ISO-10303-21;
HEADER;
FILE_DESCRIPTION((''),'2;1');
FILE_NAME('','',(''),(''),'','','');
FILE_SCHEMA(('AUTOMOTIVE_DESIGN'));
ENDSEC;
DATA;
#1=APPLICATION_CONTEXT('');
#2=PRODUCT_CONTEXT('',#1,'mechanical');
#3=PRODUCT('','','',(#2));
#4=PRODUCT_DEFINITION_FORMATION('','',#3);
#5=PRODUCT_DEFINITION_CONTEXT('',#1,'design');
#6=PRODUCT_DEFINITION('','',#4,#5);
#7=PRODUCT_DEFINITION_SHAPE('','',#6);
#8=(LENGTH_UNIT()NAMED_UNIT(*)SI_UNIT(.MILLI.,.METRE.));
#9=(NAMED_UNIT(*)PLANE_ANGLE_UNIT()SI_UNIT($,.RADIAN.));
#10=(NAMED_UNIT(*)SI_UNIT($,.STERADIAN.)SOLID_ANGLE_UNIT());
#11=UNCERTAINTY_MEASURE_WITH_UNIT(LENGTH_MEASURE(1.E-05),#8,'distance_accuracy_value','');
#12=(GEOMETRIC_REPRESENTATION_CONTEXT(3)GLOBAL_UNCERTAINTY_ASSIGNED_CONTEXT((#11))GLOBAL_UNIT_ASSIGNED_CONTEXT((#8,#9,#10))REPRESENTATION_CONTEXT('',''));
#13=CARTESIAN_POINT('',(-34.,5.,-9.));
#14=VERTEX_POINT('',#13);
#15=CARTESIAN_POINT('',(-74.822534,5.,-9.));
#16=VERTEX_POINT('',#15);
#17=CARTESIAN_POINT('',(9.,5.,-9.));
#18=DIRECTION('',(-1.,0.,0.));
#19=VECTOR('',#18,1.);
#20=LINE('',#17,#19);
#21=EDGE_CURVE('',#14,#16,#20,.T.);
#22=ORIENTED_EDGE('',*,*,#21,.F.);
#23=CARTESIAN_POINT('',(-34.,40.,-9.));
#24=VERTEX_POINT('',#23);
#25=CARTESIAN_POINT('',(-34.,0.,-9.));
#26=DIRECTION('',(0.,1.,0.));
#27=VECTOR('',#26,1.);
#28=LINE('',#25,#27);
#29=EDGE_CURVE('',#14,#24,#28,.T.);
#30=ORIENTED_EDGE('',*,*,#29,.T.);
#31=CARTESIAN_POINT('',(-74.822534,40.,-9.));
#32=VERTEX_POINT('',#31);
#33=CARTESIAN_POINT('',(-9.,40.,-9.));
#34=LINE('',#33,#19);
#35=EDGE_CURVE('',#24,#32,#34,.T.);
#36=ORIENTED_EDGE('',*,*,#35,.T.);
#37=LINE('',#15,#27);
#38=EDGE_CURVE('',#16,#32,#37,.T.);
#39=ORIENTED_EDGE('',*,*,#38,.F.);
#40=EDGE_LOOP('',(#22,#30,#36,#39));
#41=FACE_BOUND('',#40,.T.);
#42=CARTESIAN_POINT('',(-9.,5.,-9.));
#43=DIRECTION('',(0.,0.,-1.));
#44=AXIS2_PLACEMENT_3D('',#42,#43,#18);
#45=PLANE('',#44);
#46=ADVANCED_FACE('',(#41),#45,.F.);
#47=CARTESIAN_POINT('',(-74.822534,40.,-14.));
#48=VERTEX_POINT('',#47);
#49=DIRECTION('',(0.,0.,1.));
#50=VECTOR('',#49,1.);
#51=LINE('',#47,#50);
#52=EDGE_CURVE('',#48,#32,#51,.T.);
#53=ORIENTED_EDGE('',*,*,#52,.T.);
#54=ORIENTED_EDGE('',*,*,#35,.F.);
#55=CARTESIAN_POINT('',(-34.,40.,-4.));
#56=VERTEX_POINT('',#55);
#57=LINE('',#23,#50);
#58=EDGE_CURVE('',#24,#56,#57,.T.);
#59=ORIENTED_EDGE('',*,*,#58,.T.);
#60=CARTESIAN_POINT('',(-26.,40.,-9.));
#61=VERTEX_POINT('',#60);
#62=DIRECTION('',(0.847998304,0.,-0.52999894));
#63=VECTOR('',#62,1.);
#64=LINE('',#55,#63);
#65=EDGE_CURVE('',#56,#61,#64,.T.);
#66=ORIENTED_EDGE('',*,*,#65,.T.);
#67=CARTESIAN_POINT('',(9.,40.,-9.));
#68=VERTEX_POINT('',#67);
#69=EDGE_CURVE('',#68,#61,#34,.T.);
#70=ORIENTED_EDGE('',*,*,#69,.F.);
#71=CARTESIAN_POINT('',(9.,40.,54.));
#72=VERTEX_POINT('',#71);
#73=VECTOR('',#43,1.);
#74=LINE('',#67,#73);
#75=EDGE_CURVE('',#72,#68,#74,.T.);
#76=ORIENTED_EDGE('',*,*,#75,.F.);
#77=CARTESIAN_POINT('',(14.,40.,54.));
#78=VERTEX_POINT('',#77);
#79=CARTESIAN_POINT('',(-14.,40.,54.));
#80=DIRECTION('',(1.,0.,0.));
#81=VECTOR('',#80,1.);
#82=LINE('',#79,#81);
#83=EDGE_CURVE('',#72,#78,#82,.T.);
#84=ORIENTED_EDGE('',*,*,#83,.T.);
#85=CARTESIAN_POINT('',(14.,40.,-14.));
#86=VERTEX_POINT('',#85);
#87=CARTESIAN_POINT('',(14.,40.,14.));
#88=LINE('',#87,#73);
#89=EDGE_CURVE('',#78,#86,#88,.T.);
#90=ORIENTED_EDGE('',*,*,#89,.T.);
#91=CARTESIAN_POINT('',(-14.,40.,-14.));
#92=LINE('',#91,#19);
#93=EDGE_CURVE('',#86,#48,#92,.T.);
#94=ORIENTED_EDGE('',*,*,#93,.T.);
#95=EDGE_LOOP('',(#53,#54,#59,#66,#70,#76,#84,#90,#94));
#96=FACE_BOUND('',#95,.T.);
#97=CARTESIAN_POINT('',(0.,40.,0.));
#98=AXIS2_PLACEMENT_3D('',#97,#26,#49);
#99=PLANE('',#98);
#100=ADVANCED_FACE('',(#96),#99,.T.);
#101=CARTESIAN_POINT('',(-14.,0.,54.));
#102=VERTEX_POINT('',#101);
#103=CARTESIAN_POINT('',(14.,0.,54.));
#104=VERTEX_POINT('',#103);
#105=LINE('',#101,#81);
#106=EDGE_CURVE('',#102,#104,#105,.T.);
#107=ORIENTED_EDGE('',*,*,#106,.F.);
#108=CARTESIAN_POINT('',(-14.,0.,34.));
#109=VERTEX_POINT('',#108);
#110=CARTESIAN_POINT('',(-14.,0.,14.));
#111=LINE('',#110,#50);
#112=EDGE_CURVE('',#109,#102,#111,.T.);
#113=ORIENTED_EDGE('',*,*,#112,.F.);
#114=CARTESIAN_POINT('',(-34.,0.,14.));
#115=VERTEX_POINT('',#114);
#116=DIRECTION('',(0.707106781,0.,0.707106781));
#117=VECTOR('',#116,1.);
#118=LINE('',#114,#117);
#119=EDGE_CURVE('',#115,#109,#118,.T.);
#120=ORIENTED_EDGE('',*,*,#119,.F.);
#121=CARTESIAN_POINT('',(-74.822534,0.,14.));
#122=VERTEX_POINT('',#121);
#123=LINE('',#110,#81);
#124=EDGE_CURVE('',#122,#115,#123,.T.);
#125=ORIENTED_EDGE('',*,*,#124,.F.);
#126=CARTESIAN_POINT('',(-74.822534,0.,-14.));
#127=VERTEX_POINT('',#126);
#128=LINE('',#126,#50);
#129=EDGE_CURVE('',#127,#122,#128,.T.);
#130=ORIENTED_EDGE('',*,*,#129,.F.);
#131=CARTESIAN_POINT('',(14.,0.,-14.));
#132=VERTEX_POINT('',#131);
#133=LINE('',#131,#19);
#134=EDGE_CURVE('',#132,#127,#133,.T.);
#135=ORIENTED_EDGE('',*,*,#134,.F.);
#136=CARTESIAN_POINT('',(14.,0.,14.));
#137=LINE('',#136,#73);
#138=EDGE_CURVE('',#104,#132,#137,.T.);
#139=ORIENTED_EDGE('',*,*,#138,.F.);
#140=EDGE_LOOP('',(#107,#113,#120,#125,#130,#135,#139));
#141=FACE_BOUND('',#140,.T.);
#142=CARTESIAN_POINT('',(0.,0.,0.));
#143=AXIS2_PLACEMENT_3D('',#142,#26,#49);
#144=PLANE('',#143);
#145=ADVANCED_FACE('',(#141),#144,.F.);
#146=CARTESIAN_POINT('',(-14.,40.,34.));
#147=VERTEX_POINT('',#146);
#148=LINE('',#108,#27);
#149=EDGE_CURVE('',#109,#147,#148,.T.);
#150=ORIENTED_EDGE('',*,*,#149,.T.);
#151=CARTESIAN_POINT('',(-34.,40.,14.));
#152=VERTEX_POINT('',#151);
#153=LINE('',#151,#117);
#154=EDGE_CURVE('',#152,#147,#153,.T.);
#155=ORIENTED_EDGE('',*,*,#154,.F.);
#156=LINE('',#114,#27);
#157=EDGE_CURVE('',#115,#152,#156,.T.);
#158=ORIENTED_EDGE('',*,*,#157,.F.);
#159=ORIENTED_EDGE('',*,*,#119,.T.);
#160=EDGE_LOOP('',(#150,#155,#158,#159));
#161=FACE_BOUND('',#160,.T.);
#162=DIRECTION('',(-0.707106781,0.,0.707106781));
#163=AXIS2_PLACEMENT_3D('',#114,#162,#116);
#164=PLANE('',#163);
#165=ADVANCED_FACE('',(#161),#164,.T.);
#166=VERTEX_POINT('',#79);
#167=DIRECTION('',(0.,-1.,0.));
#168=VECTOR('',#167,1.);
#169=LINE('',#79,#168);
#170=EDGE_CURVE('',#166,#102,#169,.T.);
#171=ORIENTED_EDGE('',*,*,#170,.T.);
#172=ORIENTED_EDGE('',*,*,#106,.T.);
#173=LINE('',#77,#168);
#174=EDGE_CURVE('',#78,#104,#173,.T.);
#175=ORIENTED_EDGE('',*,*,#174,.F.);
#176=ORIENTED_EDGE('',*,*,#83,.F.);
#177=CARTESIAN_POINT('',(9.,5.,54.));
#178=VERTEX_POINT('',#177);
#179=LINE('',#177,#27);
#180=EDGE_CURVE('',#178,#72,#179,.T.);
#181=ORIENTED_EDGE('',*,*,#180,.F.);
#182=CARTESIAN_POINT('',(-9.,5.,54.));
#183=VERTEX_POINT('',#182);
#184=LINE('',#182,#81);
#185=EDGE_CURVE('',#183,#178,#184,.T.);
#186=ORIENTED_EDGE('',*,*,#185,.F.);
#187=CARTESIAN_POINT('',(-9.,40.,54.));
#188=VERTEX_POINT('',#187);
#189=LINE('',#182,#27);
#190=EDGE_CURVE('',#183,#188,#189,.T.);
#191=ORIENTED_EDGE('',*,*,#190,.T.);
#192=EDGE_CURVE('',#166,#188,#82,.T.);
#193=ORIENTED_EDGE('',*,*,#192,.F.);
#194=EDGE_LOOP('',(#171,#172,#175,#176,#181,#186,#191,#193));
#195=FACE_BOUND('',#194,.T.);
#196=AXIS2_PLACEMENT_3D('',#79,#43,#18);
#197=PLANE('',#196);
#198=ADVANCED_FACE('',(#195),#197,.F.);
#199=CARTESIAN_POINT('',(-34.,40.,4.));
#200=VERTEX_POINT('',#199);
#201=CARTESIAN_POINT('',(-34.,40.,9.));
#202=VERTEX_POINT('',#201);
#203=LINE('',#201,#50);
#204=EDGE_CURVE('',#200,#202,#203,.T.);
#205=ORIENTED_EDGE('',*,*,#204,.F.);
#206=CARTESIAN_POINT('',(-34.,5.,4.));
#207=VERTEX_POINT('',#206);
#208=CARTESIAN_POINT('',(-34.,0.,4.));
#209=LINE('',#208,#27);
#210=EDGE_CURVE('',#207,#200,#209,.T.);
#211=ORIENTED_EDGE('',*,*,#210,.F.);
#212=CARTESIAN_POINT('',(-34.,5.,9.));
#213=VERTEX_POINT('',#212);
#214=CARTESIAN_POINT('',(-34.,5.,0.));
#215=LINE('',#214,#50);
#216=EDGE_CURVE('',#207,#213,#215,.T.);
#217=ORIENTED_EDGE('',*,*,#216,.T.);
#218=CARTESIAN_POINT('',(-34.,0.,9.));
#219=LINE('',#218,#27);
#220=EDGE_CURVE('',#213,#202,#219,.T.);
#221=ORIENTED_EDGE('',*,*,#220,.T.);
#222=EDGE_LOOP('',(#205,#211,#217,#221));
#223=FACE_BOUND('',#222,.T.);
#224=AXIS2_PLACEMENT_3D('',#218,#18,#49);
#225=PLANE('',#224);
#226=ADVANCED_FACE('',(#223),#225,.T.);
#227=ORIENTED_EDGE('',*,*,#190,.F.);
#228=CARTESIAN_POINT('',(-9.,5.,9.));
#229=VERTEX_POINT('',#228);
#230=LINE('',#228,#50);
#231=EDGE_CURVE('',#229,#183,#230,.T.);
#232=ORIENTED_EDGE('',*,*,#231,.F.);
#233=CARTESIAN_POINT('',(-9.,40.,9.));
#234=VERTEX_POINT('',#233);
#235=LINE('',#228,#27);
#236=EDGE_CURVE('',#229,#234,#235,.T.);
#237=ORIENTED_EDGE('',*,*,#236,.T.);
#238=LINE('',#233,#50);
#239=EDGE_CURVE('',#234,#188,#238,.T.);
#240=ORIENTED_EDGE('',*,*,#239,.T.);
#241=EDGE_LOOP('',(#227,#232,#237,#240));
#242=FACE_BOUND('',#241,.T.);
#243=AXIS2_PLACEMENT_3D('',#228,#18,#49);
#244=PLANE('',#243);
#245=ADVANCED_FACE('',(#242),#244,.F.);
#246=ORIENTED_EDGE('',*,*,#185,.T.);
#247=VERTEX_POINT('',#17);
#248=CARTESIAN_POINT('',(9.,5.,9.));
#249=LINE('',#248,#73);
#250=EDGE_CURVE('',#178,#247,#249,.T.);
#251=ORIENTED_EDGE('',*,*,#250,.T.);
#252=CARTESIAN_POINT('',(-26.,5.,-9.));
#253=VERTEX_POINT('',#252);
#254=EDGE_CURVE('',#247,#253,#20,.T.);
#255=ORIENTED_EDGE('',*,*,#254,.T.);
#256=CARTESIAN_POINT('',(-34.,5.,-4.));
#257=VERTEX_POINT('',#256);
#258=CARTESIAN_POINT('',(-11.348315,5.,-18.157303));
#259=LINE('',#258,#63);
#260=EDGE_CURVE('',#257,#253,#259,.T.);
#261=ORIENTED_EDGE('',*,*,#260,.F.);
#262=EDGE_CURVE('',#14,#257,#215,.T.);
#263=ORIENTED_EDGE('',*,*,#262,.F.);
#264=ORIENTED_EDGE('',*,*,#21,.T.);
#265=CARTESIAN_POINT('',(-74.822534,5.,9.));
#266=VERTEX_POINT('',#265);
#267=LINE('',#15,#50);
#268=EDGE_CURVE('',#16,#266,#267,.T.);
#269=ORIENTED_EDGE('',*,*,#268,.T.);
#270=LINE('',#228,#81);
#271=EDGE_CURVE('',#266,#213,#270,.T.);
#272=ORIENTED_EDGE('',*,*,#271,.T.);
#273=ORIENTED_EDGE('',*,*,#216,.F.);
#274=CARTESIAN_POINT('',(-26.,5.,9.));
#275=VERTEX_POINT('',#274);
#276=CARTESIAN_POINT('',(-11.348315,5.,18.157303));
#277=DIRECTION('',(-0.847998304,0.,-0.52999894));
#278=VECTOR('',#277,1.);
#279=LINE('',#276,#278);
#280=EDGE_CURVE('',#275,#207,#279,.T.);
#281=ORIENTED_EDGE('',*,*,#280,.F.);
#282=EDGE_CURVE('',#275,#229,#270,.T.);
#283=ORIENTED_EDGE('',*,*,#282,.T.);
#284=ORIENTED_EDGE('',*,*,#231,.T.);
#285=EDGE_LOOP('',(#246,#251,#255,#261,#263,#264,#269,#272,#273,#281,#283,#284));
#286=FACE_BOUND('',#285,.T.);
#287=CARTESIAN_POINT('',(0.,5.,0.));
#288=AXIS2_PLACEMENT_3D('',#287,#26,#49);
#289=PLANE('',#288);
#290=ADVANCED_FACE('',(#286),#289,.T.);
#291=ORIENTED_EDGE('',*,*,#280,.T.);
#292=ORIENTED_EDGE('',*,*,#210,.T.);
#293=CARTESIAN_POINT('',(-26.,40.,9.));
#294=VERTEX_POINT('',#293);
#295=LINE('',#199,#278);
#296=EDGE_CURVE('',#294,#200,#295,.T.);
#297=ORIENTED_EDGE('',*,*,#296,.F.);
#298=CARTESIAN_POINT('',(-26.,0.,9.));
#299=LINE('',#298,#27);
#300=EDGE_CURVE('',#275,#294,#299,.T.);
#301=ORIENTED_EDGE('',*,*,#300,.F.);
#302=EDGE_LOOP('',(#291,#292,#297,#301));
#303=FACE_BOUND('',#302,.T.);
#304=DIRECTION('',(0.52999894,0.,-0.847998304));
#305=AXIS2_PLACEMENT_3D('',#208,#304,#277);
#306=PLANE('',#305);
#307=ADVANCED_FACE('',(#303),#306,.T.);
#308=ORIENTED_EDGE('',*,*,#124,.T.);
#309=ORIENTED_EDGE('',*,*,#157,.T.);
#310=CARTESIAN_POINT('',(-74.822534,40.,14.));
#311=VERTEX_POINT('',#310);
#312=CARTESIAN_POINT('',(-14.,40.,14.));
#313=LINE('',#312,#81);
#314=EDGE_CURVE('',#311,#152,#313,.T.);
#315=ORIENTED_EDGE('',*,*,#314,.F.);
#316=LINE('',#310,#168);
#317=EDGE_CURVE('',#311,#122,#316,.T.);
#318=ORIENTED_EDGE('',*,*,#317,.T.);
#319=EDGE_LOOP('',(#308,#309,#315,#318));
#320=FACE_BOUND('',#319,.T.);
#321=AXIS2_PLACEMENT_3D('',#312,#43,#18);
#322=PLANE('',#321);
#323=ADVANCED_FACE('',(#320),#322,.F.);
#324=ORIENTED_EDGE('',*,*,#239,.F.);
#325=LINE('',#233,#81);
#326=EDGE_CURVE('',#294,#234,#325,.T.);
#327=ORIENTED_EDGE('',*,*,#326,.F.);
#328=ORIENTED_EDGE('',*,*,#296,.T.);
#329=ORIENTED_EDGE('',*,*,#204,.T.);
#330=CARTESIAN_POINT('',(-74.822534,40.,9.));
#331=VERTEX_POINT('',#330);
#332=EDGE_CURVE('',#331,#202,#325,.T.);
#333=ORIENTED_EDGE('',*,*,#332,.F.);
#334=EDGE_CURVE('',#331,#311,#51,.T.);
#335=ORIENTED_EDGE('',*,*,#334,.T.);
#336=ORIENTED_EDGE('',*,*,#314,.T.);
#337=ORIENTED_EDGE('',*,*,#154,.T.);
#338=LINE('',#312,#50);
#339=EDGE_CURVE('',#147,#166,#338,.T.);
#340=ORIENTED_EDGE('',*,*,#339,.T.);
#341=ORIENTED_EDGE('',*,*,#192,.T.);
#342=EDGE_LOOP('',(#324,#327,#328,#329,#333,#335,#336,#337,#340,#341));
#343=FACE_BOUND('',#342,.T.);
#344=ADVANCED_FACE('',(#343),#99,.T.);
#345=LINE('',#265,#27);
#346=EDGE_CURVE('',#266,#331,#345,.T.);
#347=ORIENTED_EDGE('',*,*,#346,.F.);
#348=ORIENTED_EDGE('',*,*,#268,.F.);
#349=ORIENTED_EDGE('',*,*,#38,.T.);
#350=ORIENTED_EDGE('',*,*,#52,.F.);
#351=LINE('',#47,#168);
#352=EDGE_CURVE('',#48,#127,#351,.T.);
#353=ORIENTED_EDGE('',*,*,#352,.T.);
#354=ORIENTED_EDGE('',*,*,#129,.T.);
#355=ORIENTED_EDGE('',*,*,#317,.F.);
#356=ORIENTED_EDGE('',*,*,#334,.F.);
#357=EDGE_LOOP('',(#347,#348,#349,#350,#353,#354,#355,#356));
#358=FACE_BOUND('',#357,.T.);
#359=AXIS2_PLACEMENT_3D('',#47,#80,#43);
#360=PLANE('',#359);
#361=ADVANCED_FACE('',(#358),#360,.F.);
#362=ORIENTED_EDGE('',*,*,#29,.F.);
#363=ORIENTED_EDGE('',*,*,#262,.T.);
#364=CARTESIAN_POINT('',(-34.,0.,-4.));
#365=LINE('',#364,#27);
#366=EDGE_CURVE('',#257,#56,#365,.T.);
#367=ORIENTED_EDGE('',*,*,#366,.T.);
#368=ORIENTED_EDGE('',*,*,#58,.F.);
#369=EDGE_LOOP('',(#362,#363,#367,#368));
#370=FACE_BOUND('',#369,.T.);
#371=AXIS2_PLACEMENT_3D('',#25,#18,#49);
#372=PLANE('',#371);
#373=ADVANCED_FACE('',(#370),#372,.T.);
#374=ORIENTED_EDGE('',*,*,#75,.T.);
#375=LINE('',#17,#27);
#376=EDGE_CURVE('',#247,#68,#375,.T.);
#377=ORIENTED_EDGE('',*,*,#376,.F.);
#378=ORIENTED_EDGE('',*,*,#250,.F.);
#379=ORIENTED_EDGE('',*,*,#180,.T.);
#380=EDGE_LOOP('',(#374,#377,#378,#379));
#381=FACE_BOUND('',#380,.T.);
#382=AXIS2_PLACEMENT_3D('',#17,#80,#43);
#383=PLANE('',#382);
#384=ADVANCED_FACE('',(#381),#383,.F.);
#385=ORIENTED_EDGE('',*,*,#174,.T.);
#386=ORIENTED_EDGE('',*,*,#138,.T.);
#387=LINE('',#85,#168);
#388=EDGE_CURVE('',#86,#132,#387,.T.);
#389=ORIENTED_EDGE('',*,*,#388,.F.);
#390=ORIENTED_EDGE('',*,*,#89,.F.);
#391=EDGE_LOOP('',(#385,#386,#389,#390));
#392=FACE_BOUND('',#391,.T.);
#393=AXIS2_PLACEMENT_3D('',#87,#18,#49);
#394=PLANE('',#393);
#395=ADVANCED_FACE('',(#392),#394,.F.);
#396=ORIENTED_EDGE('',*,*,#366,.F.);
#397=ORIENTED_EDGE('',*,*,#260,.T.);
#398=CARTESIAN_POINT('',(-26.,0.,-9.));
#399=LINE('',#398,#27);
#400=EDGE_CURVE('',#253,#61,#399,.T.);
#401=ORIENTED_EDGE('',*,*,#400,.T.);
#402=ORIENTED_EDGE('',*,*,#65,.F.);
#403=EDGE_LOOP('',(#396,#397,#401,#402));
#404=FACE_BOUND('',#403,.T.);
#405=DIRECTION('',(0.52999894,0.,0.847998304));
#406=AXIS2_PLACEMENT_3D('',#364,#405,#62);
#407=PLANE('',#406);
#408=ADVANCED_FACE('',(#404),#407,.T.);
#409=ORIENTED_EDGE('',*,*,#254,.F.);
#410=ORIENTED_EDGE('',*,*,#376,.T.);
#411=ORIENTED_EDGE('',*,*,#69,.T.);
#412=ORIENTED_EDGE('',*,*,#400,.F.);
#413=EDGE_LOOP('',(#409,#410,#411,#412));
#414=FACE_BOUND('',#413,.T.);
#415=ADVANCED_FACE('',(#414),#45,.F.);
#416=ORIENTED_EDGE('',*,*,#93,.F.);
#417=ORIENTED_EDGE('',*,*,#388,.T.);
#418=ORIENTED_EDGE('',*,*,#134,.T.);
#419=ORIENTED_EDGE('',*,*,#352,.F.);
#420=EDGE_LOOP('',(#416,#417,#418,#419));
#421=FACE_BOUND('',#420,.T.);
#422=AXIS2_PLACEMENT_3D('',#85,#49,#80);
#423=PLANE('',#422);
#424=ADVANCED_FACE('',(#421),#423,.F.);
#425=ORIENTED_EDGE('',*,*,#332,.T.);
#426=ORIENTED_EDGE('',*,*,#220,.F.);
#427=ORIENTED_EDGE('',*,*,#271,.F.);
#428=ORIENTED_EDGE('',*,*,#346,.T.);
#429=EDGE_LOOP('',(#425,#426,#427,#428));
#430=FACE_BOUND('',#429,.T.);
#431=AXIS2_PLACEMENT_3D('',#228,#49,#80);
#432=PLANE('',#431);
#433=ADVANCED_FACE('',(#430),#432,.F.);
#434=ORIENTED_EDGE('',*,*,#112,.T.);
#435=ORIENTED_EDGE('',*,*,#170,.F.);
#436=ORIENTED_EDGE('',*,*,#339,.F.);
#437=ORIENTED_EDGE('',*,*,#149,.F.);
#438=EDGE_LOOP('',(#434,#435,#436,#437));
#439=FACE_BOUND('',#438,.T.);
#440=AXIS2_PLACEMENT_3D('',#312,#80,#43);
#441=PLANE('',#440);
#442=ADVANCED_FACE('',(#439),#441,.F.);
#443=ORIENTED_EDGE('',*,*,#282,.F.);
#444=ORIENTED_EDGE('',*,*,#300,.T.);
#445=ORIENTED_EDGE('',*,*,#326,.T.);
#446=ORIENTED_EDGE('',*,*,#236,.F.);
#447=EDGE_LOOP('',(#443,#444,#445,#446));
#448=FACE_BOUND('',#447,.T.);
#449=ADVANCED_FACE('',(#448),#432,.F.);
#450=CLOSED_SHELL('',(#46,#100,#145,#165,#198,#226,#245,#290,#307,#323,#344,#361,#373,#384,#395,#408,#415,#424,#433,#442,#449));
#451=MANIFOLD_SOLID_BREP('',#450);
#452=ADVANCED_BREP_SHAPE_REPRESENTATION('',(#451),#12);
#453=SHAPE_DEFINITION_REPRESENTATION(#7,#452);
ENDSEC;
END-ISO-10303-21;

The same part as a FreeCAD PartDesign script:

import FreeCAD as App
import Part
import Sketcher
Q = App.Units.Quantity


def add_polygon(sketch, points):
    """Adds a closed chain of lines whose ends are joined by coincident constraints."""
    first, n = sketch.GeometryCount, len(points)
    for a, b in zip(points, points[1:] + points[:1]):
        sketch.addGeometry(Part.LineSegment(App.Vector(*a, 0), App.Vector(*b, 0)), False)
    for i in range(n):
        sketch.addConstraint(Sketcher.Constraint("Coincident", first + i, 2, first + (i + 1) % n, 1))

doc = App.newDocument("Part")
params = doc.addObject("Spreadsheet::Sheet", "Params")
for row, (alias, value) in enumerate([
    ("sketch1_width", "28 mm"),
    ("sketch1_height", "40 mm"),
    ("pad1_length", "40 mm"),
    ("sketch2_width", "18 mm"),
    ("sketch2_height", "45 mm"),
    ("pocket1_length", "35 mm"),
    ("sketch3_width", "20 mm"),
    ("sketch3_width2", "8 mm"),
    ("sketch3_height", "5 mm"),
    ("pad2_length", "40 mm"),
], start=1):
    params.set(f"A{row}", alias)
    params.set(f"B{row}", "=" + value)
    params.setAlias(f"B{row}", alias)

body = doc.addObject("PartDesign::Body", "Body")

# Sketch on XZ plane
sketch1 = body.newObject("Sketcher::SketchObject", "Sketch")
sketch1.AttachmentSupport = (doc.getObject("XZ_Plane"), [""])
sketch1.MapMode = "FlatFace"
add_polygon(sketch1, [(14, -14), (-75, -14), (-75, 14), (-14, 14), (-14, 54), (14, 54)])  # lines 0-5
sketch1.addConstraint(Sketcher.Constraint("Horizontal", 0))
sketch1.addConstraint(Sketcher.Constraint("Vertical", 1))
sketch1.addConstraint(Sketcher.Constraint("Horizontal", 2))
sketch1.addConstraint(Sketcher.Constraint("Vertical", 3))
sketch1.addConstraint(Sketcher.Constraint("Horizontal", 4))
sketch1.addConstraint(Sketcher.Constraint("Vertical", 5))
sketch1.addConstraint(Sketcher.Constraint("Symmetric", 2, 2, 5, 2, -1, 1))
sketch1.addConstraint(Sketcher.Constraint("Equal", 4, 1))
sketch1.addConstraint(Sketcher.Constraint("DistanceX", 4, 1, 4, 2, Q("28 mm")))
sketch1.addConstraint(Sketcher.Constraint("DistanceY", 3, 1, 3, 2, Q("40 mm")))
sketch1.addConstraint(Sketcher.Constraint("DistanceX", 0, 2, 0, 1, Q("88.822534 mm")))
sketch1.setExpression("Constraints[14]", "Params.sketch1_width")
sketch1.setExpression("Constraints[15]", "Params.sketch1_height")
pad1 = body.newObject("PartDesign::Pad", "Pad")
pad1.Profile = sketch1
pad1.setExpression("Length", "Params.pad1_length")
pad1.Reversed = True

# Sketch on XZ plane
sketch2 = body.newObject("Sketcher::SketchObject", "Sketch001")
sketch2.AttachmentSupport = (doc.getObject("XZ_Plane"), [""])
sketch2.MapMode = "FlatFace"
sketch2.AttachmentOffset = App.Placement(App.Vector(0, 0, -40), App.Rotation())
add_polygon(sketch2, [(9, -9), (-75, -9), (-75, 9), (-9, 9), (-9, 54), (9, 54)])  # lines 0-5
sketch2.addConstraint(Sketcher.Constraint("Horizontal", 0))
sketch2.addConstraint(Sketcher.Constraint("Vertical", 1))
sketch2.addConstraint(Sketcher.Constraint("Horizontal", 2))
sketch2.addConstraint(Sketcher.Constraint("Vertical", 3))
sketch2.addConstraint(Sketcher.Constraint("Horizontal", 4))
sketch2.addConstraint(Sketcher.Constraint("Vertical", 5))
sketch2.addConstraint(Sketcher.Constraint("Symmetric", 2, 2, 5, 2, -1, 1))
sketch2.addConstraint(Sketcher.Constraint("Equal", 4, 1))
sketch2.addConstraint(Sketcher.Constraint("DistanceX", 4, 1, 4, 2, Q("18 mm")))
sketch2.addConstraint(Sketcher.Constraint("DistanceY", 3, 1, 3, 2, Q("45 mm")))
sketch2.addConstraint(Sketcher.Constraint("DistanceX", 0, 2, 0, 1, Q("83.822534 mm")))
sketch2.setExpression("Constraints[14]", "Params.sketch2_width")
sketch2.setExpression("Constraints[15]", "Params.sketch2_height")
pocket1 = body.newObject("PartDesign::Pocket", "Pocket")
pocket1.Profile = sketch2
pocket1.setExpression("Length", "Params.pocket1_length")
pocket1.Reversed = True

# Sketch on XZ plane
sketch3 = body.newObject("Sketcher::SketchObject", "Sketch002")
sketch3.AttachmentSupport = (doc.getObject("XZ_Plane"), [""])
sketch3.MapMode = "FlatFace"
sketch3.AttachmentOffset = App.Placement(App.Vector(0, 0, -40), App.Rotation())
add_polygon(sketch3, [(-34, 14), (-14, 34), (-14, 14)])  # lines 0-2
add_polygon(sketch3, [(-34, 4), (-34, 9), (-26, 9)])  # lines 3-5
add_polygon(sketch3, [(-34, -4), (-26, -9), (-34, -9)])  # lines 6-8
sketch3.addConstraint(Sketcher.Constraint("Vertical", 1))
sketch3.addConstraint(Sketcher.Constraint("Horizontal", 2))
sketch3.addConstraint(Sketcher.Constraint("Vertical", 3))
sketch3.addConstraint(Sketcher.Constraint("Horizontal", 4))
sketch3.addConstraint(Sketcher.Constraint("Horizontal", 7))
sketch3.addConstraint(Sketcher.Constraint("Vertical", 8))
sketch3.addConstraint(Sketcher.Constraint("Symmetric", 4, 2, 6, 2, -1))
sketch3.addConstraint(Sketcher.Constraint("Symmetric", 5, 2, 8, 2, -1))
sketch3.addConstraint(Sketcher.Constraint("Vertical", 2, 2, 3, 2))
sketch3.addConstraint(Sketcher.Constraint("Equal", 2, 1))
sketch3.addConstraint(Sketcher.Constraint("DistanceX", 2, 2, 2, 1, Q("20 mm")))
sketch3.addConstraint(Sketcher.Constraint("DistanceX", 4, 1, 4, 2, Q("8 mm")))
sketch3.addConstraint(Sketcher.Constraint("DistanceY", 3, 1, 3, 2, Q("5 mm")))
sketch3.addConstraint(Sketcher.Constraint("DistanceX", 0, 2, -1, 1, Q("14 mm")))
sketch3.addConstraint(Sketcher.Constraint("DistanceY", -1, 1, 0, 2, Q("34 mm")))
sketch3.addConstraint(Sketcher.Constraint("DistanceY", -1, 1, 3, 2, Q("9 mm")))
sketch3.setExpression("Constraints[19]", "Params.sketch3_width")
sketch3.setExpression("Constraints[20]", "Params.sketch3_width2")
sketch3.setExpression("Constraints[21]", "Params.sketch3_height")
pad2 = body.newObject("PartDesign::Pad", "Pad001")
pad2.Profile = sketch3
pad2.setExpression("Length", "Params.pad2_length")

doc.recompute()
